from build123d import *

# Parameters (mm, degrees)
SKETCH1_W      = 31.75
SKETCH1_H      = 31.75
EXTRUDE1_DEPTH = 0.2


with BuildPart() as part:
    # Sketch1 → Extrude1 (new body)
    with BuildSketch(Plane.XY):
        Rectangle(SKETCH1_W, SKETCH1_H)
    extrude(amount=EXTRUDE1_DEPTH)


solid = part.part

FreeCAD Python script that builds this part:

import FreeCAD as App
import Part
import Sketcher

doc = App.newDocument("Part")
body = doc.addObject("PartDesign::Body", "Body")

sketch1 = body.newObject("Sketcher::SketchObject", "Sketch")
sketch1.AttachmentSupport = (doc.getObject("XY_Plane"), [""])
sketch1.MapMode = "FlatFace"
sketch1.addGeometry([
    Part.LineSegment(App.Vector(-16, 16, 0), App.Vector(-16, -16, 0)),
    Part.LineSegment(App.Vector(-16, -16, 0), App.Vector(16, -16, 0)),
    Part.LineSegment(App.Vector(16, -16, 0), App.Vector(16, 16, 0)),
    Part.LineSegment(App.Vector(16, 16, 0), App.Vector(-16, 16, 0)),
], False)
sketch1.addConstraint([
    Sketcher.Constraint("Coincident", 0, 2, 1, 1),
    Sketcher.Constraint("Coincident", 1, 2, 2, 1),
    Sketcher.Constraint("Coincident", 2, 2, 3, 1),
    Sketcher.Constraint("Coincident", 3, 2, 0, 1),
    Sketcher.Constraint("Vertical", 0),
    Sketcher.Constraint("Horizontal", 1),
    Sketcher.Constraint("Vertical", 2),
    Sketcher.Constraint("Horizontal", 3),
    Sketcher.Constraint("Symmetric", 0, 2, 2, 2, -1, 1),
    Sketcher.Constraint("Equal", 3, 0),
    Sketcher.Constraint("DistanceX", 1, 1, 1, 2, 31.75),
])
pad1 = body.newObject("PartDesign::Pad", "Pad")
pad1.Profile = sketch1
pad1.Length = 0.2

doc.recompute()
